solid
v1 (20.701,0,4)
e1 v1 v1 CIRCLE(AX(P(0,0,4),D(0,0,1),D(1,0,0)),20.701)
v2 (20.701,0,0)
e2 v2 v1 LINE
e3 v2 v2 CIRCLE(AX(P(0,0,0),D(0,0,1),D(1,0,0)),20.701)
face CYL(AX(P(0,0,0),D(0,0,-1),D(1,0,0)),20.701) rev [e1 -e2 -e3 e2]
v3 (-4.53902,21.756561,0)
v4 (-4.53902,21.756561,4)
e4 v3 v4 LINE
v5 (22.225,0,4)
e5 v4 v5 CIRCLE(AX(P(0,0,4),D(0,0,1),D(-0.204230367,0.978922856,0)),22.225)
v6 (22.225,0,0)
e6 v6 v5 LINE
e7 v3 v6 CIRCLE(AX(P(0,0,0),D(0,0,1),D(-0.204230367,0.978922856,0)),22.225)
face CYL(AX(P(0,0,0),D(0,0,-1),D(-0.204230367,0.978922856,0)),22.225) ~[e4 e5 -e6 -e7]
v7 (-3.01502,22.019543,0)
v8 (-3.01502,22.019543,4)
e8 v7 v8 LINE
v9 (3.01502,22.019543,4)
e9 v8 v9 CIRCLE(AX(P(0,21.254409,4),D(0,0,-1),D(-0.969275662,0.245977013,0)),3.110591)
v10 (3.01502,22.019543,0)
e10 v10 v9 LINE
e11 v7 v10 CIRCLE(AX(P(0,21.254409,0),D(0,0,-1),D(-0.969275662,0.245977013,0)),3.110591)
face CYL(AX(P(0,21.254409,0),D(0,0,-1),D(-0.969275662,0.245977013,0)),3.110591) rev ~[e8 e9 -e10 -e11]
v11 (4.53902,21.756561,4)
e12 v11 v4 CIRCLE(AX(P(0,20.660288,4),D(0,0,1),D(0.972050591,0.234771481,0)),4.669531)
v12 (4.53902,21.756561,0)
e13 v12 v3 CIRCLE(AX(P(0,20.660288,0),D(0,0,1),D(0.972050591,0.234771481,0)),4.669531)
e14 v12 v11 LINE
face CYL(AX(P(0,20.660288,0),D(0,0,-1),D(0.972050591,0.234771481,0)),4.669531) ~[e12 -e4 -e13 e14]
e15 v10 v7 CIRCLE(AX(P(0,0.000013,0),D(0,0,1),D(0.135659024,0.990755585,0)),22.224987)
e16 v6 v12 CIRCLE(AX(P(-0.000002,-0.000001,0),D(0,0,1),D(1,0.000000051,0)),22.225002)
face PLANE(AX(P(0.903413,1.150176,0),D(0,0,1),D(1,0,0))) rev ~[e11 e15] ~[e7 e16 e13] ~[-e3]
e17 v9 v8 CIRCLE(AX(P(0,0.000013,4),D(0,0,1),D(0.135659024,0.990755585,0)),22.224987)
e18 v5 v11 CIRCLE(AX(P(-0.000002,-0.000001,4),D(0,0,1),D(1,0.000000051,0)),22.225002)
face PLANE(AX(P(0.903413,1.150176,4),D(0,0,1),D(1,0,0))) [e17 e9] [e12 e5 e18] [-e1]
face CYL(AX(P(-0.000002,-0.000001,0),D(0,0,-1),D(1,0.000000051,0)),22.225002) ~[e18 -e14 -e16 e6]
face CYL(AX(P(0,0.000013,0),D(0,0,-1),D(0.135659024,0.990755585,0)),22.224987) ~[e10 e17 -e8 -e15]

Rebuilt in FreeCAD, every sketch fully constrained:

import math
import FreeCAD as App
import Part
import Sketcher
Q = App.Units.Quantity

doc = App.newDocument("Part")
body = doc.addObject("PartDesign::Body", "Body")

# Sketch on XY plane
sketch1 = body.newObject("Sketcher::SketchObject", "Sketch")
sketch1.AttachmentSupport = (doc.getObject("XY_Plane"), [""])
sketch1.MapMode = "FlatFace"
sketch1.addGeometry(Part.ArcOfCircle(Part.Circle(App.Vector(0, 0, 0), App.Vector(0, 0, 1), 22.225), math.radians(101.784449), math.radians(359.999999)), False)
sketch1.addGeometry(Part.ArcOfCircle(Part.Circle(App.Vector(-0.000002, -0.000001, 0), App.Vector(0, 0, 1), 22.225002), math.radians(0.000003), math.radians(78.215546)), False)
sketch1.addGeometry(Part.ArcOfCircle(Part.Circle(App.Vector(0, 20.660288, 0), App.Vector(0, 0, 1), 4.669531), math.radians(13.578153), math.radians(166.421847)), False)
sketch1.addGeometry(Part.ArcOfCircle(Part.Circle(App.Vector(0, 0.000013, 0), App.Vector(0, 0, 1), 22.224987), math.radians(82.20327), math.radians(97.79673)), False)
sketch1.addGeometry(Part.ArcOfCircle(Part.Circle(App.Vector(0, 21.254409, 0), App.Vector(0, 0, 1), 3.110591), math.radians(14.239579), math.radians(165.760421)), False)
sketch1.addGeometry(Part.Circle(App.Vector(0, 0, 0), App.Vector(0, 0, 1), 20.701), False)
sketch1.addConstraint(Sketcher.Constraint("Tangent", 0, 2, 1, 1))
sketch1.addConstraint(Sketcher.Constraint("Coincident", 1, 2, 2, 1))
sketch1.addConstraint(Sketcher.Constraint("Coincident", 2, 2, 0, 1))
sketch1.addConstraint(Sketcher.Constraint("Coincident", 3, 1, 4, 1))
sketch1.addConstraint(Sketcher.Constraint("Coincident", 4, 2, 3, 2))
sketch1.addConstraint(Sketcher.Constraint("Coincident", 0, 3, -1, 1))
sketch1.addConstraint(Sketcher.Constraint("Coincident", 5, 3, -1, 1))
sketch1.addConstraint(Sketcher.Constraint("Symmetric", 1, 2, 2, 2, -2))
sketch1.addConstraint(Sketcher.Constraint("Symmetric", 3, 1, 4, 2, -2))
sketch1.addConstraint(Sketcher.Constraint("PointOnObject", 0, 2, -1))
sketch1.addConstraint(Sketcher.Constraint("Diameter", 5, Q("1.63 in")))
sketch1.addConstraint(Sketcher.Constraint("Radius", 0, Q("0.875 in")))
sketch1.addConstraint(Sketcher.Constraint("DistanceX", 3, 1, 1, 2, Q("0.06 in")))
sketch1.addConstraint(Sketcher.Constraint("Radius", 2, 4.669531))
sketch1.addConstraint(Sketcher.Constraint("Radius", 4, 3.110591))
sketch1.addConstraint(Sketcher.Constraint("Radius", 3, 22.224987))
sketch1.addConstraint(Sketcher.Constraint("DistanceY", -1, 1, 2, 3, 20.660288))
sketch1.addConstraint(Sketcher.Constraint("DistanceY", -1, 1, 4, 3, 21.254409))
pad1 = body.newObject("PartDesign::Pad", "Pad")
pad1.Profile = sketch1
pad1.Length = 4

doc.recompute()
